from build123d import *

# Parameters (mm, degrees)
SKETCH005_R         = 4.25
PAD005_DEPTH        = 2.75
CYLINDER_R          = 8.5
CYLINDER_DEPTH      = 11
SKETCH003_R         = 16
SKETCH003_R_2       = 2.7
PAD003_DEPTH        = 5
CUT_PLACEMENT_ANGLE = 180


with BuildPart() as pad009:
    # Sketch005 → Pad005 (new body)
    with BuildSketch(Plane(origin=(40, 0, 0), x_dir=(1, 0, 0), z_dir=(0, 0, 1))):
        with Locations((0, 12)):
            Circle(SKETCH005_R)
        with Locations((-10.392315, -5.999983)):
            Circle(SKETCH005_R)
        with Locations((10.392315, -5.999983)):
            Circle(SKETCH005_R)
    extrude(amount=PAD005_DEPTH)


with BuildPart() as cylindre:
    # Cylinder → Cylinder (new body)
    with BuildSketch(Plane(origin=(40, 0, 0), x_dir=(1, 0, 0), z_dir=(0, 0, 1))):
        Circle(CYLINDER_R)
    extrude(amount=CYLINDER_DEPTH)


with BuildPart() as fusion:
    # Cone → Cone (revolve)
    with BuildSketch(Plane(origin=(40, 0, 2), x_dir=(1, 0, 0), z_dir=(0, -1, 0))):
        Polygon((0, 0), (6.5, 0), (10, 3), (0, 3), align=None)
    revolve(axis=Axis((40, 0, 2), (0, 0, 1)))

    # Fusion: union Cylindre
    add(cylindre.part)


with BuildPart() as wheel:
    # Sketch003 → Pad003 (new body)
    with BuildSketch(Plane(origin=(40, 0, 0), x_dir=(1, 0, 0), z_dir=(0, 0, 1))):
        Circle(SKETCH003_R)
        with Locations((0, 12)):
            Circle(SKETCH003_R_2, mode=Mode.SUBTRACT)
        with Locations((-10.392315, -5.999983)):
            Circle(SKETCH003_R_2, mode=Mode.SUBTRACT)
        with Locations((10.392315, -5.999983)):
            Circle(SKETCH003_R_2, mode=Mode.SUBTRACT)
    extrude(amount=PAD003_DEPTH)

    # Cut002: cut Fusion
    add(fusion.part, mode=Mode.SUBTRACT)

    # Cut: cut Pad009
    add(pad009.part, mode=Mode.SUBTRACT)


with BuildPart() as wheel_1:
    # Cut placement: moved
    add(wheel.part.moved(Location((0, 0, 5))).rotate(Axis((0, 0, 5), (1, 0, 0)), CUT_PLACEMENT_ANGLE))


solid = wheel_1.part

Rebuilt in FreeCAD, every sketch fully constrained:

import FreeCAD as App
import Part
import Sketcher
from FreeCAD import Vector
Q = App.Units.Quantity

doc = App.newDocument("Part")
body = doc.addObject("PartDesign::Body", "Body")
body.AllowCompound = True

sketch1 = body.newObject("Sketcher::SketchObject", "Sketch")
sketch1.AttachmentSupport = (doc.getObject("XY_Plane"), [""])
sketch1.MapMode = "FlatFace"
sketch1.addGeometry(Part.Circle(Vector(40, 12, 0), Vector(0, 0, 1), 4.25), False)
sketch1.addGeometry(Part.Circle(Vector(29.607685, -5.999983, 0), Vector(0, 0, 1), 4.25), False)
sketch1.addGeometry(Part.Circle(Vector(50.392315, -5.999983, 0), Vector(0, 0, 1), 4.25), False)
sketch1.addConstraint(Sketcher.Constraint("Equal", 0, 1))
sketch1.addConstraint(Sketcher.Constraint("Equal", 1, 2))
sketch1.addConstraint(Sketcher.Constraint("Horizontal", 1, 3, 2, 3))
sketch1.addConstraint(Sketcher.Constraint("Diameter", 0, Q("8.5 mm")))
sketch1.addConstraint(Sketcher.Constraint("DistanceX", -1, 1, 0, 3, Q("40 mm")))
sketch1.addConstraint(Sketcher.Constraint("DistanceY", -1, 1, 0, 3, Q("12 mm")))
sketch1.addConstraint(Sketcher.Constraint("DistanceX", 1, 3, 2, 3, Q("20.78463 mm")))
sketch1.addConstraint(Sketcher.Constraint("DistanceX", -1, 1, 1, 3, Q("29.607685 mm")))
sketch1.addConstraint(Sketcher.Constraint("DistanceY", 1, 3, -1, 1, Q("5.999983 mm")))
pad1 = body.newObject("PartDesign::Pad", "Pad")
pad1.Profile = sketch1
pad1.Length = 2.75
body2 = doc.addObject("PartDesign::Body", "Body001")

sketch2 = body2.newObject("Sketcher::SketchObject", "Sketch001")
sketch2.AttachmentSupport = (doc.getObject("XY_Plane001"), [""])
sketch2.MapMode = "FlatFace"
sketch2.addGeometry(Part.Circle(Vector(40, 0, 0), Vector(0, 0, 1), 8.5), False)
sketch2.addConstraint(Sketcher.Constraint("PointOnObject", 0, 3, -1))
sketch2.addConstraint(Sketcher.Constraint("Diameter", 0, Q("17 mm")))
sketch2.addConstraint(Sketcher.Constraint("DistanceX", -1, 1, 0, 3, Q("40 mm")))
pad2 = body2.newObject("PartDesign::Pad", "Pad001")
pad2.Profile = sketch2
pad2.Length = 11
body3 = doc.addObject("PartDesign::Body", "Body002")

sketch3 = body3.newObject("Sketcher::SketchObject", "Sketch002")
sketch3.AttachmentSupport = (doc.getObject("XZ_Plane002"), [""])
sketch3.MapMode = "FlatFace"
sketch3.addGeometry(Part.LineSegment(Vector(40, 2, 0), Vector(46.5, 2, 0)), False)
sketch3.addGeometry(Part.LineSegment(Vector(46.5, 2, 0), Vector(50, 5, 0)), False)
sketch3.addGeometry(Part.LineSegment(Vector(50, 5, 0), Vector(40, 5, 0)), False)
sketch3.addGeometry(Part.LineSegment(Vector(40, 5, 0), Vector(40, 2, 0)), False)
sketch3.addGeometry(Part.LineSegment(Vector(40, 2, 0), Vector(40, 5, 0)), True)
sketch3.addConstraint(Sketcher.Constraint("Coincident", 0, 2, 1, 1))
sketch3.addConstraint(Sketcher.Constraint("Coincident", 1, 2, 2, 1))
sketch3.addConstraint(Sketcher.Constraint("Coincident", 2, 2, 3, 1))
sketch3.addConstraint(Sketcher.Constraint("Coincident", 3, 2, 0, 1))
sketch3.addConstraint(Sketcher.Constraint("Horizontal", 0))
sketch3.addConstraint(Sketcher.Constraint("Horizontal", 2))
sketch3.addConstraint(Sketcher.Constraint("Vertical", 3))
sketch3.addConstraint(Sketcher.Constraint("Vertical", 4))
sketch3.addConstraint(Sketcher.Constraint("Coincident", 4, 1, 3, 2))
sketch3.addConstraint(Sketcher.Constraint("Horizontal", 1, 2, 4, 2))
sketch3.addConstraint(Sketcher.Constraint("DistanceX", 2, 2, 2, 1, Q("10 mm")))
sketch3.addConstraint(Sketcher.Constraint("DistanceY", 3, 2, 3, 1, Q("3 mm")))
sketch3.addConstraint(Sketcher.Constraint("DistanceX", 0, 1, 0, 2, Q("6.5 mm")))
sketch3.addConstraint(Sketcher.Constraint("DistanceY", -1, 1, 0, 2, Q("2 mm")))
sketch3.addConstraint(Sketcher.Constraint("DistanceX", -1, 1, 1, 2, Q("50 mm")))
revolution = body3.newObject("PartDesign::Revolution", "Revolution")
revolution.Profile = sketch3
revolution.ReferenceAxis = (sketch3, ["Axis0"])
revolution.Angle = 360
doc.recompute()

boolean = body3.newObject("PartDesign::Boolean", "Boolean")
boolean.Type = "Fuse"
boolean.addObjects([body2])
body4 = doc.addObject("PartDesign::Body", "Body003")

sketch4 = body4.newObject("Sketcher::SketchObject", "Sketch003")
sketch4.AttachmentSupport = (doc.getObject("XY_Plane003"), [""])
sketch4.MapMode = "FlatFace"
sketch4.addGeometry(Part.Circle(Vector(40, 0, 0), Vector(0, 0, 1), 16), False)
sketch4.addGeometry(Part.Circle(Vector(29.607685, -5.999983, 0), Vector(0, 0, 1), 2.7), False)
sketch4.addGeometry(Part.Circle(Vector(50.392315, -5.999983, 0), Vector(0, 0, 1), 2.7), False)
sketch4.addGeometry(Part.Circle(Vector(40, 12, 0), Vector(0, 0, 1), 2.7), False)
sketch4.addConstraint(Sketcher.Constraint("Equal", 1, 2))
sketch4.addConstraint(Sketcher.Constraint("Equal", 2, 3))
sketch4.addConstraint(Sketcher.Constraint("PointOnObject", 0, 3, -1))
sketch4.addConstraint(Sketcher.Constraint("Horizontal", 1, 3, 2, 3))
sketch4.addConstraint(Sketcher.Constraint("Vertical", 0, 3, 3, 3))
sketch4.addConstraint(Sketcher.Constraint("Diameter", 0, Q("32 mm")))
sketch4.addConstraint(Sketcher.Constraint("Diameter", 1, Q("5.4 mm")))
sketch4.addConstraint(Sketcher.Constraint("DistanceX", -1, 1, 0, 3, Q("40 mm")))
sketch4.addConstraint(Sketcher.Constraint("DistanceY", -1, 1, 3, 3, Q("12 mm")))
sketch4.addConstraint(Sketcher.Constraint("DistanceX", 1, 3, 2, 3, Q("20.78463 mm")))
sketch4.addConstraint(Sketcher.Constraint("DistanceX", -1, 1, 1, 3, Q("29.607685 mm")))
sketch4.addConstraint(Sketcher.Constraint("DistanceY", 1, 3, -1, 1, Q("5.999983 mm")))
pad3 = body4.newObject("PartDesign::Pad", "Pad002")
pad3.Profile = sketch4
pad3.Length = 5
doc.recompute()

boolean2 = body4.newObject("PartDesign::Boolean", "Boolean001")
boolean2.Type = "Cut"
boolean2.addObjects([body3])
doc.recompute()

boolean3 = body4.newObject("PartDesign::Boolean", "Boolean002")
boolean3.Type = "Cut"
boolean3.addObjects([body])
body5 = doc.addObject("PartDesign::Body", "Body004")
doc.recompute()

body4.Placement = App.Placement(Vector(0, 0, 5), App.Rotation(Vector(1, 0, 0), 180))
boolean4 = body5.newObject("PartDesign::Boolean", "Boolean003")
boolean4.Type = "Fuse"
boolean4.addObjects([body4])

doc.recompute()
